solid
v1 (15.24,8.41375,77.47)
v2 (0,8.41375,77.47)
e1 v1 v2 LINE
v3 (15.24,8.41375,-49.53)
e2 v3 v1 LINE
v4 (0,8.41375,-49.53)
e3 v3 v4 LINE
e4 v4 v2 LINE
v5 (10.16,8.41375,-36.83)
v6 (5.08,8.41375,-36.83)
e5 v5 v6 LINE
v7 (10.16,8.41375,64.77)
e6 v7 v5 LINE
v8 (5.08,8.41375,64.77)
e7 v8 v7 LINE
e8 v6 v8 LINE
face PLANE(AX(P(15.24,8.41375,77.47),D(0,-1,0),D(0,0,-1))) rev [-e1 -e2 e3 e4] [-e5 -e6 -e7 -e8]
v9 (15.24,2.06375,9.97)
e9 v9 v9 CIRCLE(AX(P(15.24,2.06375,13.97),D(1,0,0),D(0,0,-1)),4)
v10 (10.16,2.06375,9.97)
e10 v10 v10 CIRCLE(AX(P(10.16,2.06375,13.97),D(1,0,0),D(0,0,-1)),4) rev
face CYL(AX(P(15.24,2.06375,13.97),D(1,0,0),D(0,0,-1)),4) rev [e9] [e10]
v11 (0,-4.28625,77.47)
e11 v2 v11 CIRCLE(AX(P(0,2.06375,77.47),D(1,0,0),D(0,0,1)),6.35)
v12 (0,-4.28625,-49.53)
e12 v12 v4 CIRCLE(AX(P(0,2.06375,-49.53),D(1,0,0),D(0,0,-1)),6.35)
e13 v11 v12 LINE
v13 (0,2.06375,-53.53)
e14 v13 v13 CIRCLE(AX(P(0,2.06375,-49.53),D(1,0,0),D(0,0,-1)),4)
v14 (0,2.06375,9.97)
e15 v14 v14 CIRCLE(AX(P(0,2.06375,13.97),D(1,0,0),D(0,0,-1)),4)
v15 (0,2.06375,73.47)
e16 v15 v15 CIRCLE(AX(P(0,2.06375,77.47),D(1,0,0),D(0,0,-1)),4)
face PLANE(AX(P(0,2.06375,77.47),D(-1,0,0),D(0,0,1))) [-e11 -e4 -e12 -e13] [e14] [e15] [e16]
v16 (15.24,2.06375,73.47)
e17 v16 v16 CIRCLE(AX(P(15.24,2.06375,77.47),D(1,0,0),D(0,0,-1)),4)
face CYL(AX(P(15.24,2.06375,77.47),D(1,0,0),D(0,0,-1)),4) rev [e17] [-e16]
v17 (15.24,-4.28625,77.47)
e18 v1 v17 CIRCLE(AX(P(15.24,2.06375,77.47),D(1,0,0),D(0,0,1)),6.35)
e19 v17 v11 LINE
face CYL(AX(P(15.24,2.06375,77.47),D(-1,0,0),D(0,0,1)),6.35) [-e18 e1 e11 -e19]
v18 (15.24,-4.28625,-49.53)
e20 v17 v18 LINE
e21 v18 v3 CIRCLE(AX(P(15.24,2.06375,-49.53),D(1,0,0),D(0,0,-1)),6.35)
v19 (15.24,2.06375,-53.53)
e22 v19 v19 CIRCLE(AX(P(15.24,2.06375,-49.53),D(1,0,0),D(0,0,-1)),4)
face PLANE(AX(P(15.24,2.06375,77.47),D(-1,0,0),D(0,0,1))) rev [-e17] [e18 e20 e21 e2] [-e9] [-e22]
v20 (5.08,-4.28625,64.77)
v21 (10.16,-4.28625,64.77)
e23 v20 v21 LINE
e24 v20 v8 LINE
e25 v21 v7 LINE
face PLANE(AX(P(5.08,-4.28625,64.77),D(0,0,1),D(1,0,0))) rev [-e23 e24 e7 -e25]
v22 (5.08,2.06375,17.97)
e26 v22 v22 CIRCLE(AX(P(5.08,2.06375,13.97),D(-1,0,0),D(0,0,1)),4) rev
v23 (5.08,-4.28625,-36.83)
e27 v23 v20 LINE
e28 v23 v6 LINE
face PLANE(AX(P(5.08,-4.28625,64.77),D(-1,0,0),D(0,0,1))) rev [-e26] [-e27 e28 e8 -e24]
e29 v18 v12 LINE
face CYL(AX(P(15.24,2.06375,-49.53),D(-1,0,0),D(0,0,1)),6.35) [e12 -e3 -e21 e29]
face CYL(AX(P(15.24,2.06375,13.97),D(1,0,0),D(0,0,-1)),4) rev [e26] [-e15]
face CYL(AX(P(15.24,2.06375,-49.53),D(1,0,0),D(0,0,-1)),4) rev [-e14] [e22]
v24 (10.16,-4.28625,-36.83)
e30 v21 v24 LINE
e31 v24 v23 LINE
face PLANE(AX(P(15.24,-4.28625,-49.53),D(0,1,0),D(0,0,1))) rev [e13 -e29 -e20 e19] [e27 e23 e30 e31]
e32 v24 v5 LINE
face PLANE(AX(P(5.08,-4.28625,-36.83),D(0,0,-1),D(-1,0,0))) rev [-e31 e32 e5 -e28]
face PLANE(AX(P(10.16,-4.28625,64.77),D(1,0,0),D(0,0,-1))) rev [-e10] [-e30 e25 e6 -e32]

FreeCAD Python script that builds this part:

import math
import FreeCAD as App
import Part
import Sketcher

V = App.Vector
Q = App.Units.Quantity


def add_polygon(sketch, points):
    """Adds a closed chain of lines whose ends are joined by coincident constraints."""
    first, n = sketch.GeometryCount, len(points)
    for a, b in zip(points, points[1:] + points[:1]):
        sketch.addGeometry(Part.LineSegment(App.Vector(*a, 0), App.Vector(*b, 0)), False)
    for i in range(n):
        sketch.addConstraint(Sketcher.Constraint("Coincident", first + i, 2, first + (i + 1) % n, 1))

doc = App.newDocument("Part")
body = doc.addObject("PartDesign::Body", "Body")

sketch1 = body.newObject("Sketcher::SketchObject", "Sketch")
sketch1.AttachmentSupport = (doc.getObject("YZ_Plane"), [""])
sketch1.MapMode = "FlatFace"
sketch1.addGeometry([
    Part.LineSegment(V(8, -50, 0), V(8, 77, 0)),
    Part.ArcOfCircle(Part.Circle(V(2, 77, 0), V(0, 0, 1), 6), math.radians(0), math.radians(180)),
    Part.LineSegment(V(-4, 77, 0), V(-4, -50, 0)),
    Part.ArcOfCircle(Part.Circle(V(2, -50, 0), V(0, 0, 1), 6), math.radians(180), math.radians(360)),
], False)
sketch1.addConstraint([
    Sketcher.Constraint("Tangent", 0, 2, 1, 1),
    Sketcher.Constraint("Tangent", 1, 2, 2, 1),
    Sketcher.Constraint("Tangent", 2, 2, 3, 1),
    Sketcher.Constraint("Tangent", 3, 2, 0, 1),
    Sketcher.Constraint("Vertical", 0),
    Sketcher.Constraint("Vertical", 2),
    Sketcher.Constraint("DistanceY", 0, 1, 0, 2, Q("5 in")),
    Sketcher.Constraint("Radius", 1, Q("0.25 in")),
    Sketcher.Constraint("DistanceY", -1, 1, 1, 3, Q("3.05 in")),
    Sketcher.Constraint("DistanceX", -1, 1, 1, 3, 2.06375),
])
pad1 = body.newObject("PartDesign::Pad", "Pad")
pad1.Profile = sketch1
pad1.Length = Q("0.6 in")

sketch2 = body.newObject("Sketcher::SketchObject", "Sketch001")
sketch2.AttachmentSupport = (doc.getObject("YZ_Plane"), [""])
sketch2.MapMode = "FlatFace"
sketch2.AttachmentOffset = App.Placement(V(0, 0, 0.6 * 25.4), App.Rotation())
sketch2.addGeometry([
    Part.Circle(V(2.1, 77.5, 0), V(0, 0, 1), 4),
    Part.Circle(V(2.1, -49.5, 0), V(0, 0, 1), 4),
    Part.Circle(V(2.1, 14, 0), V(0, 0, 1), 4),
], False)
sketch2.addConstraint([
    Sketcher.Constraint("Equal", 0, 1),
    Sketcher.Constraint("Equal", 1, 2),
    Sketcher.Constraint("Vertical", 0, 3, 1, 3),
    Sketcher.Constraint("Vertical", 1, 3, 2, 3),
    Sketcher.Constraint("DistanceY", 1, 3, 0, 3, Q("5 in")),
    Sketcher.Constraint("DistanceY", 2, 3, 0, 3, Q("2.5 in")),
    Sketcher.Constraint("Diameter", 0, 8.0),
    Sketcher.Constraint("DistanceY", -1, 1, 0, 3, Q("3.05 in")),
    Sketcher.Constraint("DistanceX", -1, 1, 0, 3, 2.06375),
])
doc.recompute()
hole = body.newObject("PartDesign::Hole", "Hole")
hole.Profile = sketch2
hole.ThreadType = "None"
hole.Diameter = 8
hole.DepthType = "ThroughAll"

sketch3 = body.newObject("Sketcher::SketchObject", "Sketch002")
sketch3.AttachmentSupport = (doc.getObject("XZ_Plane"), [""])
sketch3.MapMode = "FlatFace"
sketch3.AttachmentOffset = App.Placement(V(0, 0, -8.41375), App.Rotation())
add_polygon(sketch3, [(5, -37), (5, 65), (10, 65), (10, -37)])
sketch3.addConstraint([
    Sketcher.Constraint("Vertical", 0),
    Sketcher.Constraint("Horizontal", 1),
    Sketcher.Constraint("Vertical", 2),
    Sketcher.Constraint("Horizontal", 3),
    Sketcher.Constraint("DistanceY", 0, 1, 0, 2, Q("4 in")),
    Sketcher.Constraint("DistanceX", 1, 1, 1, 2, Q("0.2 in")),
    Sketcher.Constraint("DistanceX", -1, 1, 0, 2, Q("0.2 in")),
    Sketcher.Constraint("DistanceY", -1, 1, 0, 2, Q("2.55 in")),
])
pocket1 = body.newObject("PartDesign::Pocket", "Pocket")
pocket1.Profile = sketch3
pocket1.Type = "ThroughAll"
pocket1.Reversed = True

doc.recompute()
